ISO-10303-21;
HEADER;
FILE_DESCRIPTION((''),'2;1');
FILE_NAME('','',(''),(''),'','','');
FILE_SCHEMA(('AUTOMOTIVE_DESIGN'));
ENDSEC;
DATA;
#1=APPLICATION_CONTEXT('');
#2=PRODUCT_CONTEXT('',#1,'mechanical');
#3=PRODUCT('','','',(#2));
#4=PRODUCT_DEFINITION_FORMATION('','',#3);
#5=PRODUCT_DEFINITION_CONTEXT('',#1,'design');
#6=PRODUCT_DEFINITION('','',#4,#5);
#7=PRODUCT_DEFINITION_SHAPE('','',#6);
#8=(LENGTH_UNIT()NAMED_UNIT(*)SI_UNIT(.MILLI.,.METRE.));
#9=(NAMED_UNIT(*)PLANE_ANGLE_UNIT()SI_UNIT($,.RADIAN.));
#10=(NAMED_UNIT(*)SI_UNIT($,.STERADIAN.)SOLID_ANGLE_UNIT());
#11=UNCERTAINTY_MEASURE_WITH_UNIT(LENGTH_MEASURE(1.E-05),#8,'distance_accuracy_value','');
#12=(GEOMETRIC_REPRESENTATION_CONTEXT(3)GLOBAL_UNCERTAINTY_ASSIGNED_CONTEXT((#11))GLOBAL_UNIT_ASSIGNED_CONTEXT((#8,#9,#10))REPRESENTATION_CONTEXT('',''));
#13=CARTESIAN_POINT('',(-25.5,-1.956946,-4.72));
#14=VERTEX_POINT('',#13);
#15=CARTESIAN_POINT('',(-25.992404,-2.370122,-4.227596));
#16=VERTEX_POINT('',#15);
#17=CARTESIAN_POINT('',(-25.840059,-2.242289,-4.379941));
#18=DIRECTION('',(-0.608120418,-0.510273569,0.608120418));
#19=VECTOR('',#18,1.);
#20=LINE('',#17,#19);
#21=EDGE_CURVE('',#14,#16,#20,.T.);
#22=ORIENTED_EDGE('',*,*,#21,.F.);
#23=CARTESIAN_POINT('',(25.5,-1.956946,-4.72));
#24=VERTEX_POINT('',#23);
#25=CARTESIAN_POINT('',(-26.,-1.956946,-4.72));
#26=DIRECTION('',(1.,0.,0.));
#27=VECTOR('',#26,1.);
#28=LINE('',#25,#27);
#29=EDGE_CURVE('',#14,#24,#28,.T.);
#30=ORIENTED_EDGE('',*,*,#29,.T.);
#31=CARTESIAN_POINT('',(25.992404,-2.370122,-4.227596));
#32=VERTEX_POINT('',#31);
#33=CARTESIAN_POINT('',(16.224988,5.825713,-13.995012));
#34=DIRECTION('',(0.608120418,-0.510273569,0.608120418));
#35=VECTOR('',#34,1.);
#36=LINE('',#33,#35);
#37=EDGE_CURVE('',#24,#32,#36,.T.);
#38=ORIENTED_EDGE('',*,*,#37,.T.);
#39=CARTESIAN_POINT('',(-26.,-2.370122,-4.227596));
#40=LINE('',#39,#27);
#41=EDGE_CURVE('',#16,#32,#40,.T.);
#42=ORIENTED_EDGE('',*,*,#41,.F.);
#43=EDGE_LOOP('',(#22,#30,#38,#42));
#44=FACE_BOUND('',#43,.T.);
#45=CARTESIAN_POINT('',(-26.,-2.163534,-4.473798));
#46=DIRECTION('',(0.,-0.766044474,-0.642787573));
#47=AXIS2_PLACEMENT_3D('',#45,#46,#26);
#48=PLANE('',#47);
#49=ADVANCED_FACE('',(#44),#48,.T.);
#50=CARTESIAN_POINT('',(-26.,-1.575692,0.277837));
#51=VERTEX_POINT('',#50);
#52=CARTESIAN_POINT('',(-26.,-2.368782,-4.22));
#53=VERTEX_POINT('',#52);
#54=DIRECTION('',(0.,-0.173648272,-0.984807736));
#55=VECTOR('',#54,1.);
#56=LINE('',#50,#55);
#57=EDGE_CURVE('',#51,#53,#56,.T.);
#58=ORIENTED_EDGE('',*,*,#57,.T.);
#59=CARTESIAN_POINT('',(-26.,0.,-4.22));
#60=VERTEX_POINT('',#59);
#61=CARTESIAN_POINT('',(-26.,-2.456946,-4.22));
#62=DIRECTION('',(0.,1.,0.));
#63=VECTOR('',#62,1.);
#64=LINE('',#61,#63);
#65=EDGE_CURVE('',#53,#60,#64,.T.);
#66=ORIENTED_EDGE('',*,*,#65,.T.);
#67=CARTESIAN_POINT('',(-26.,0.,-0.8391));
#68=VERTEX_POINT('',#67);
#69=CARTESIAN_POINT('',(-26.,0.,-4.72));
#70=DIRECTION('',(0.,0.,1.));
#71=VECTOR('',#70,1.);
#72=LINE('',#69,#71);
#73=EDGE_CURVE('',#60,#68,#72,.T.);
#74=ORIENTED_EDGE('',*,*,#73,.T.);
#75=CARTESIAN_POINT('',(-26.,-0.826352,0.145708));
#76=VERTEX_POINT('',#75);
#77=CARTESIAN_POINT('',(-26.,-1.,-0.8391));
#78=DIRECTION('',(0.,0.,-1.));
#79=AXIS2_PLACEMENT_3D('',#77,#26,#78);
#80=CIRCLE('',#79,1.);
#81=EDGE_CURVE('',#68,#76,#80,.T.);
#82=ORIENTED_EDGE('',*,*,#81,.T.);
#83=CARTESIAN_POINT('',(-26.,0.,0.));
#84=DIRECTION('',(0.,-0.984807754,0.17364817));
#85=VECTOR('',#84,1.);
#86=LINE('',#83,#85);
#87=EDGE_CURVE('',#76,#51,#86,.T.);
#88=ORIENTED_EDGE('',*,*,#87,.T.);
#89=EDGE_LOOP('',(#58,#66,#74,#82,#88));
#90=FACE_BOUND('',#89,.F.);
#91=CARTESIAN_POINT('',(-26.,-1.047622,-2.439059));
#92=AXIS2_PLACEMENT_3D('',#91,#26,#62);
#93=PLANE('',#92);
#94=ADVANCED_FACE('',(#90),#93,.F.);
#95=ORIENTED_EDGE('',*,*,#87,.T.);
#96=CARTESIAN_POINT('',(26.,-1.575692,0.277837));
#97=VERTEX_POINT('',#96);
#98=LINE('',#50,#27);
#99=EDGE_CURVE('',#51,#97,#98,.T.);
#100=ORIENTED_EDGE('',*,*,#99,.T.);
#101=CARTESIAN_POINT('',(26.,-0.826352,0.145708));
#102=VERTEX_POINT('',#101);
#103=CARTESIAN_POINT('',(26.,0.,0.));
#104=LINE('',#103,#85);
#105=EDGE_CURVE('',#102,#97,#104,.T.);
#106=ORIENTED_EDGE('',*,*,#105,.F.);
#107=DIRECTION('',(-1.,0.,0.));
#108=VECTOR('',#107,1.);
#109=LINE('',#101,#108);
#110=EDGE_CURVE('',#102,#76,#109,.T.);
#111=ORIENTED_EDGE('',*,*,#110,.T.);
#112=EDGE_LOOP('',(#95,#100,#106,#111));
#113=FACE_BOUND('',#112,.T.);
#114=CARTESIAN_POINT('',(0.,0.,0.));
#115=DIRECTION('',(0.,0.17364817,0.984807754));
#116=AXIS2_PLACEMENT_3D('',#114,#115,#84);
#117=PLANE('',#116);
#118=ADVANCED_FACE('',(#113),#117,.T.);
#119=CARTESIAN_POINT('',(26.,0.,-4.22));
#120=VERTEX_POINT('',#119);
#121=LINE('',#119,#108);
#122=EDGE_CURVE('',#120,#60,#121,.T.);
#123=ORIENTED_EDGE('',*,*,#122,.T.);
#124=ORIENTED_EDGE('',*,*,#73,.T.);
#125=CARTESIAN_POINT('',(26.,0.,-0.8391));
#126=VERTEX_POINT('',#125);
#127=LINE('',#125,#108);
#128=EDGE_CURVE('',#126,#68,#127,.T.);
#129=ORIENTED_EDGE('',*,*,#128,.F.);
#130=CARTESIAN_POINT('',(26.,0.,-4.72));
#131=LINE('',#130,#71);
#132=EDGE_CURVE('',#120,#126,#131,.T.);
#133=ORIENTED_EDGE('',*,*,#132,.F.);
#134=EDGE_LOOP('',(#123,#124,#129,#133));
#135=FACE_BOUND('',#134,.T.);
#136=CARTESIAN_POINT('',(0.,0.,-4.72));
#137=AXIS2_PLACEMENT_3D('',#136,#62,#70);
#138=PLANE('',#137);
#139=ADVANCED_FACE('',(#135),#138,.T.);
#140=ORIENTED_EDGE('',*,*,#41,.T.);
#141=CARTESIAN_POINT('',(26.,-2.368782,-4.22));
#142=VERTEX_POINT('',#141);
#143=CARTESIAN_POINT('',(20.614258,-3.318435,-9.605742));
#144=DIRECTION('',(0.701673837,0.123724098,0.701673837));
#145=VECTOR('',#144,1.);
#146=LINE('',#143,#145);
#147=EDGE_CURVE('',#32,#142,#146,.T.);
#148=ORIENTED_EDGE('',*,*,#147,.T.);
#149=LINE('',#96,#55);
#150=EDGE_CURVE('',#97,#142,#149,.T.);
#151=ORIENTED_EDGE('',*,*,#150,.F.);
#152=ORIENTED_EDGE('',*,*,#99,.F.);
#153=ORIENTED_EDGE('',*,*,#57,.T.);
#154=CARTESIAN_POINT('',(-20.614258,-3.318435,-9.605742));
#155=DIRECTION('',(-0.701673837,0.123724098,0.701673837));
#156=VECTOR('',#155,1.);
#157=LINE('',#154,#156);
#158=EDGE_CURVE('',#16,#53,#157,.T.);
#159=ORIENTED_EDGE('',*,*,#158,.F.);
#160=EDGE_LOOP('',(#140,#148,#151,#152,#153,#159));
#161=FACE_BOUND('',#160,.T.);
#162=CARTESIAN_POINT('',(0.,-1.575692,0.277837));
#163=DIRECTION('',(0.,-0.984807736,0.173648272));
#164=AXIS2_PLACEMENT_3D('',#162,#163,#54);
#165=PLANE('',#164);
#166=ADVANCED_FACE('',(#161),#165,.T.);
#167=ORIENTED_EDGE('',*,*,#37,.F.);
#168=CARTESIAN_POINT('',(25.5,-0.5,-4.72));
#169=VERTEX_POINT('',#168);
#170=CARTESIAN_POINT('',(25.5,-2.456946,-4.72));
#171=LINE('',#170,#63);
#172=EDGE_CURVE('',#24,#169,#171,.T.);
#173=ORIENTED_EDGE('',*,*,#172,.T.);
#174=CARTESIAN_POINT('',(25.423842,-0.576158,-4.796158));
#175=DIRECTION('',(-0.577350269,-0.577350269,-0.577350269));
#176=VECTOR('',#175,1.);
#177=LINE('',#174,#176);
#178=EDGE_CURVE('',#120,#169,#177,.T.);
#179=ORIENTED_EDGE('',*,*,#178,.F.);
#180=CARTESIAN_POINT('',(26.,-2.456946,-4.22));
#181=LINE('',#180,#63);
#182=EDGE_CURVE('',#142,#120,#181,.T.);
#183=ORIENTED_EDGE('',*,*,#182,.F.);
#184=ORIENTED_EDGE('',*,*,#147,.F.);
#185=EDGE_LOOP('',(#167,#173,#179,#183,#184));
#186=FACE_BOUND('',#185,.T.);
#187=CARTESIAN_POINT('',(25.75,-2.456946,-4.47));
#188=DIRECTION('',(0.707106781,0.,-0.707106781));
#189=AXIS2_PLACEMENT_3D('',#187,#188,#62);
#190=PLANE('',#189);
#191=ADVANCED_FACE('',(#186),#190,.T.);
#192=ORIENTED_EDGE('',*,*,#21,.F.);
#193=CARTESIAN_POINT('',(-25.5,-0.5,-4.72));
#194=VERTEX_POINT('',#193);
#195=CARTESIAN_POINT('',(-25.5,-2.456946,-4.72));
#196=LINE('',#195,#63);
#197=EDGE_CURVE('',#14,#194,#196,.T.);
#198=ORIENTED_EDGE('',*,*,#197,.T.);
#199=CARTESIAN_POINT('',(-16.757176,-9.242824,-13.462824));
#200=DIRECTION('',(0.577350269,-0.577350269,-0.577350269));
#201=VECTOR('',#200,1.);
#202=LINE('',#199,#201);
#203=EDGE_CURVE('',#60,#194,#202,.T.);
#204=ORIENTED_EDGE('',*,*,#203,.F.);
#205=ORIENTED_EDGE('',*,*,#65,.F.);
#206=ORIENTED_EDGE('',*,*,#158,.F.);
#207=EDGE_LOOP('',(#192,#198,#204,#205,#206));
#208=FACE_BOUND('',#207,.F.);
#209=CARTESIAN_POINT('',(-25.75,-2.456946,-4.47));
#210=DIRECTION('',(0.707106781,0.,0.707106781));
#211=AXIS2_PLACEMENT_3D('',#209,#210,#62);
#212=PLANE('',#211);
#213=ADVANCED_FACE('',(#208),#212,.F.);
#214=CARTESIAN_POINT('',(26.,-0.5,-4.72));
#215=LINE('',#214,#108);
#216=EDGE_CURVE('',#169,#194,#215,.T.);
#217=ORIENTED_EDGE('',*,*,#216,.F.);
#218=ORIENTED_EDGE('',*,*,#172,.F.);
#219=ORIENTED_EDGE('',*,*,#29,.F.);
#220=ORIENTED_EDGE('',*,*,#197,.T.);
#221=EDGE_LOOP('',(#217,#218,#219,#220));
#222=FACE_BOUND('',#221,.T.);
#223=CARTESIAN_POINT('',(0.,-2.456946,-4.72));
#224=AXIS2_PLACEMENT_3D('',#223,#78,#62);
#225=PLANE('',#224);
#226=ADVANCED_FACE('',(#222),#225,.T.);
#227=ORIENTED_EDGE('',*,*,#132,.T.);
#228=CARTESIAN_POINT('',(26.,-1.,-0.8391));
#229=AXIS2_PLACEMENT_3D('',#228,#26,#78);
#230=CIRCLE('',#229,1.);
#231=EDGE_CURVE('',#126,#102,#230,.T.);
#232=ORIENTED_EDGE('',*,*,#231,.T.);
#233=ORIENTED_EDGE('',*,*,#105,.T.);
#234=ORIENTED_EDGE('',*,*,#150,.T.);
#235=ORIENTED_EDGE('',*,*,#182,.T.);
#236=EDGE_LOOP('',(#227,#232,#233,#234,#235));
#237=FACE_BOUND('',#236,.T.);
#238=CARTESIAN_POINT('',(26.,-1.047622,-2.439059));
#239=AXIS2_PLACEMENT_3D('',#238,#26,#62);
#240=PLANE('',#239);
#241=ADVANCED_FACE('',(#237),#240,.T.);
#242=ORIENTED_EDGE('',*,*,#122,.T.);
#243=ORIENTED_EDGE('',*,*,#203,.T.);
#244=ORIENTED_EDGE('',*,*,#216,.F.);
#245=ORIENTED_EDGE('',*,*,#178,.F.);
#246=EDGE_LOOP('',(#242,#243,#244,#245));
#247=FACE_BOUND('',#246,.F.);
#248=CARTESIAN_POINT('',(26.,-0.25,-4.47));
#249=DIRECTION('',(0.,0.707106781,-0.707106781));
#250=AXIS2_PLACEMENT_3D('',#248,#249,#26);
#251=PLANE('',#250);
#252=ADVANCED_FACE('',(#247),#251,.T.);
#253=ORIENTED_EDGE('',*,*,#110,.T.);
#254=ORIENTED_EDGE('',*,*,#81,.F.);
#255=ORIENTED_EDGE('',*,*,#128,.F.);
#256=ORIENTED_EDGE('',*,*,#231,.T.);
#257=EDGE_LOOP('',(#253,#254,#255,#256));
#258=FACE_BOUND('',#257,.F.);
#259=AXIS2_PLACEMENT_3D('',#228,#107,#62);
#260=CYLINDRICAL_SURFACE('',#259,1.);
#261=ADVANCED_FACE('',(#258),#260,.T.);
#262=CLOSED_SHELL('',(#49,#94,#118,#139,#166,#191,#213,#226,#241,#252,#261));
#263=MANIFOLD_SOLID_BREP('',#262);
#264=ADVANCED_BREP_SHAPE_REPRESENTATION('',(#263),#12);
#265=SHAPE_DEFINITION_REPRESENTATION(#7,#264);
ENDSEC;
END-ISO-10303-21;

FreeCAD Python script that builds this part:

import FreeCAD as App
import Part
import Sketcher
Q = App.Units.Quantity


def edges_at(feature, points):
    """Names of the edges that pass closest to the given points."""
    edges = feature.Shape.Edges
    near = lambda p: min(range(len(edges)), key=lambda i: edges[i].distToShape(Part.Vertex(*p))[0])
    return sorted({f"Edge{near(p) + 1}" for p in points})

doc = App.newDocument("Part")
body = doc.addObject("PartDesign::Body", "Body")

sketch1 = body.newObject("Sketcher::SketchObject", "Sketch")
sketch1.AttachmentSupport = (doc.getObject("YZ_Plane"), [""])
sketch1.MapMode = "FlatFace"
sketch1.addGeometry(Part.LineSegment(App.Vector(0, 0, 0), App.Vector(-1.6, 0.3, 0)), False)
sketch1.addGeometry(Part.LineSegment(App.Vector(-1.6, 0.3, 0), App.Vector(-2.5, -4.7, 0)), False)
sketch1.addGeometry(Part.LineSegment(App.Vector(-2.5, -4.7, 0), App.Vector(0, -4.7, 0)), False)
sketch1.addGeometry(Part.LineSegment(App.Vector(0, -4.7, 0), App.Vector(0, 0, 0)), False)
sketch1.addConstraint(Sketcher.Constraint("Coincident", 0, 2, 1, 1))
sketch1.addConstraint(Sketcher.Constraint("Coincident", 1, 2, 2, 1))
sketch1.addConstraint(Sketcher.Constraint("Coincident", 2, 2, 3, 1))
sketch1.addConstraint(Sketcher.Constraint("Coincident", 3, 2, 0, 1))
sketch1.addConstraint(Sketcher.Constraint("Horizontal", 2))
sketch1.addConstraint(Sketcher.Constraint("Vertical", 3))
sketch1.addConstraint(Sketcher.Constraint("Coincident", 3, 2, -1, 1))
sketch1.addConstraint(Sketcher.Constraint("Perpendicular", 0, 1))
sketch1.addConstraint(Sketcher.Constraint("Angle", 0, Q("170 deg")))
sketch1.addConstraint(Sketcher.Constraint("Distance", 0, 1.6))
sketch1.addConstraint(Sketcher.Constraint("DistanceY", 3, 1, 3, 2, 4.72))
pad1 = body.newObject("PartDesign::Pad", "Pad")
pad1.Profile = sketch1
pad1.Length = 52
pad1.Midplane = True
doc.recompute()

chamfer = body.newObject("PartDesign::Chamfer", "Chamfer")
chamfer.Base = (pad1, edges_at(pad1, [
    (0, -2.457, -4.72),
    (0, 0, -4.72),
    (-26, -1.228, -4.72),
    (26, -1.228, -4.72),
]))
chamfer.Size = 0.5
doc.recompute()

fillet = body.newObject("PartDesign::Fillet", "Fillet")
fillet.Base = (chamfer, edges_at(chamfer, [(0, 0, 0)]))
fillet.Radius = 1

doc.recompute()
